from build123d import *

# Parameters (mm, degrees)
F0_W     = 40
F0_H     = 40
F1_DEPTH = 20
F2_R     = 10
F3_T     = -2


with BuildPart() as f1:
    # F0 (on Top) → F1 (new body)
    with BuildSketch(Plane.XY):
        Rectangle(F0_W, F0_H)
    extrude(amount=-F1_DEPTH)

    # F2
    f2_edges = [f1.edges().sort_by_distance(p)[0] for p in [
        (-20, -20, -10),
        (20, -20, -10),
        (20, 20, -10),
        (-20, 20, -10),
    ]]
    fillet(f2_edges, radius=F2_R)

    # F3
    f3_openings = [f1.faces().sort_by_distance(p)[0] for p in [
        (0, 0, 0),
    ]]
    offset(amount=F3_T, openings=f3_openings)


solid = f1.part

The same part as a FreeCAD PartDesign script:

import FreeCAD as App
import Part
import Sketcher
from FreeCAD import Vector


def edges_at(feature, points):
    """Names of the edges that pass closest to the given points."""
    edges = feature.Shape.Edges
    near = lambda p: min(range(len(edges)), key=lambda i: edges[i].distToShape(Part.Vertex(*p))[0])
    return sorted({f"Edge{near(p) + 1}" for p in points})


def faces_at(feature, points):
    """Names of the faces that lie closest to the given points."""
    faces = feature.Shape.Faces
    near = lambda p: min(range(len(faces)), key=lambda i: faces[i].distToShape(Part.Vertex(*p))[0])
    return sorted({f"Face{near(p) + 1}" for p in points})


def add_polygon(sketch, points):
    """Adds a closed chain of lines whose ends are joined by coincident constraints."""
    first, n = sketch.GeometryCount, len(points)
    for a, b in zip(points, points[1:] + points[:1]):
        sketch.addGeometry(Part.LineSegment(App.Vector(*a, 0), App.Vector(*b, 0)), False)
    for i in range(n):
        sketch.addConstraint(Sketcher.Constraint("Coincident", first + i, 2, first + (i + 1) % n, 1))

doc = App.newDocument("Part")
body = doc.addObject("PartDesign::Body", "Body")

sketch1 = body.newObject("Sketcher::SketchObject", "Sketch")
sketch1.AttachmentSupport = (doc.getObject("XY_Plane"), [""])
sketch1.MapMode = "FlatFace"
add_polygon(sketch1, [(-20, 20), (-20, -20), (20, -20), (20, 20)])
sketch1.addConstraint([
    Sketcher.Constraint("Vertical", 0),
    Sketcher.Constraint("Horizontal", 1),
    Sketcher.Constraint("Vertical", 2),
    Sketcher.Constraint("Horizontal", 3),
    Sketcher.Constraint("Symmetric", 0, 2, 2, 2, -1, 1),
    Sketcher.Constraint("Equal", 3, 0),
    Sketcher.Constraint("DistanceX", 1, 1, 1, 2, 40.0),
])
pad1 = body.newObject("PartDesign::Pad", "Pad")
pad1.Profile = sketch1
pad1.Length = 20
pad1.Reversed = True
doc.recompute()

fillet = body.newObject("PartDesign::Fillet", "Fillet")
fillet.Base = (pad1, edges_at(pad1, [
    (-20, -20, -10),
    (20, -20, -10),
    (20, 20, -10),
    (-20, 20, -10),
]))
fillet.Radius = 10
doc.recompute()

thickness = body.newObject("PartDesign::Thickness", "Thickness")
thickness.Base = (fillet, faces_at(fillet, [(0, 0, 0)]))
thickness.Value = 2
thickness.Reversed = True
thickness.Join = "Arc"

doc.recompute()
